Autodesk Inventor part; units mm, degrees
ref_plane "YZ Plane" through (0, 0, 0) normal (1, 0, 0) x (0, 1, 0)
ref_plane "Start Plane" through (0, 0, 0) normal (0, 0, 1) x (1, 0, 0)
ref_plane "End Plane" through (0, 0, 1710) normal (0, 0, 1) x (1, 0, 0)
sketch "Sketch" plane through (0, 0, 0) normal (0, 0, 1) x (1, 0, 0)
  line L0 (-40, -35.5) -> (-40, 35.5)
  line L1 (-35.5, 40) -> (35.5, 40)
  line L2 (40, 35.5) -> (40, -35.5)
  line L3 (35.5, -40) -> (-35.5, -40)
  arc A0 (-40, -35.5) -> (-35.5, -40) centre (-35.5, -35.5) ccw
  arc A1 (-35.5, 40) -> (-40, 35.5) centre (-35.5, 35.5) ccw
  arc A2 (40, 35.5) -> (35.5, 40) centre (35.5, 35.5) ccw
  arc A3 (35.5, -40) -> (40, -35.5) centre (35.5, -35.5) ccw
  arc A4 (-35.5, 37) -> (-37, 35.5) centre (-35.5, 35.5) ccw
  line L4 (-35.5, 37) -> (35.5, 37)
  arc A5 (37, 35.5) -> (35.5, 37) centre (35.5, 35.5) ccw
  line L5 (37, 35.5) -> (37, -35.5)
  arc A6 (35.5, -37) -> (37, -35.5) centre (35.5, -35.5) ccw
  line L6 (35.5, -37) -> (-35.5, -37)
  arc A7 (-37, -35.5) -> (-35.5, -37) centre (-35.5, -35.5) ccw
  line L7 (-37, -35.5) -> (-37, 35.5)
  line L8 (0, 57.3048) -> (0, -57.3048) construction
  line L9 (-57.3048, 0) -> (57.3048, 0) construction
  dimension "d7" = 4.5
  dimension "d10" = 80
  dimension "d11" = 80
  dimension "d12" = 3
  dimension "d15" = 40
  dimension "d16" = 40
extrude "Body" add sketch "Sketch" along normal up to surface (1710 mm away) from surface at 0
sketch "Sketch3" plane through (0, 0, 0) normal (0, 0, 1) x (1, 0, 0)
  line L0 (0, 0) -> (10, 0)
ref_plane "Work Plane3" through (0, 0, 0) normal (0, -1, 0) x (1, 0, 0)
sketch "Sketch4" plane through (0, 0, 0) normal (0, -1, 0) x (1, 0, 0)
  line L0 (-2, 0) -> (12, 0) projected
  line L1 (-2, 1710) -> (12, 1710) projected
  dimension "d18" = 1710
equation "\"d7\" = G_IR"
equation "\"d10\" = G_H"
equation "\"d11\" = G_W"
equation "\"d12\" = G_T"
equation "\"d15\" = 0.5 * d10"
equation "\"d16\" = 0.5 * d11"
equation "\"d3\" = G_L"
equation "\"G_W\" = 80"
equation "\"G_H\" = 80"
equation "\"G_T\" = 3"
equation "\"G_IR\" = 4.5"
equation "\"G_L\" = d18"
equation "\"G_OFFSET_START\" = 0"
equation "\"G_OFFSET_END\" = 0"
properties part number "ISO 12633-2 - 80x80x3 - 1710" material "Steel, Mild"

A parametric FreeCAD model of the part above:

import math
import FreeCAD as App
import Part
import Sketcher
from FreeCAD import Vector

doc = App.newDocument("Part")
body = doc.addObject("PartDesign::Body", "Body")

# Sketch on XY plane
sketch1 = body.newObject("Sketcher::SketchObject", "Sketch")
sketch1.AttachmentSupport = (doc.getObject("XY_Plane"), [""])
sketch1.MapMode = "FlatFace"
sketch1.addGeometry(Part.LineSegment(Vector(-40, 35.5, 0), Vector(-40, -35.5, 0)), False)
sketch1.addGeometry(Part.ArcOfCircle(Part.Circle(Vector(-35.5, -35.5, 0), Vector(0, 0, 1), 4.5), math.radians(180), math.radians(270)), False)
sketch1.addGeometry(Part.LineSegment(Vector(-35.5, -40, 0), Vector(35.5, -40, 0)), False)
sketch1.addGeometry(Part.ArcOfCircle(Part.Circle(Vector(35.5, -35.5, 0), Vector(0, 0, 1), 4.5), math.radians(-90), math.radians(0)), False)
sketch1.addGeometry(Part.LineSegment(Vector(40, -35.5, 0), Vector(40, 35.5, 0)), False)
sketch1.addGeometry(Part.ArcOfCircle(Part.Circle(Vector(35.5, 35.5, 0), Vector(0, 0, 1), 4.5), math.radians(0), math.radians(90)), False)
sketch1.addGeometry(Part.LineSegment(Vector(35.5, 40, 0), Vector(-35.5, 40, 0)), False)
sketch1.addGeometry(Part.ArcOfCircle(Part.Circle(Vector(-35.5, 35.5, 0), Vector(0, 0, 1), 4.5), math.radians(90), math.radians(180)), False)
sketch1.addGeometry(Part.ArcOfCircle(Part.Circle(Vector(-35.5, 35.5, 0), Vector(0, 0, 1), 1.5), math.radians(90), math.radians(180)), False)
sketch1.addGeometry(Part.LineSegment(Vector(-35.5, 37, 0), Vector(35.5, 37, 0)), False)
sketch1.addGeometry(Part.ArcOfCircle(Part.Circle(Vector(35.5, 35.5, 0), Vector(0, 0, 1), 1.5), math.radians(0), math.radians(90)), False)
sketch1.addGeometry(Part.LineSegment(Vector(37, 35.5, 0), Vector(37, -35.5, 0)), False)
sketch1.addGeometry(Part.ArcOfCircle(Part.Circle(Vector(35.5, -35.5, 0), Vector(0, 0, 1), 1.5), math.radians(-90), math.radians(0)), False)
sketch1.addGeometry(Part.LineSegment(Vector(35.5, -37, 0), Vector(-35.5, -37, 0)), False)
sketch1.addGeometry(Part.ArcOfCircle(Part.Circle(Vector(-35.5, -35.5, 0), Vector(0, 0, 1), 1.5), math.radians(180), math.radians(270)), False)
sketch1.addGeometry(Part.LineSegment(Vector(-37, -35.5, 0), Vector(-37, 35.5, 0)), False)
sketch1.addConstraint(Sketcher.Constraint("Tangent", 0, 2, 1, 1))
sketch1.addConstraint(Sketcher.Constraint("Tangent", 1, 2, 2, 1))
sketch1.addConstraint(Sketcher.Constraint("Tangent", 2, 2, 3, 1))
sketch1.addConstraint(Sketcher.Constraint("Tangent", 3, 2, 4, 1))
sketch1.addConstraint(Sketcher.Constraint("Tangent", 4, 2, 5, 1))
sketch1.addConstraint(Sketcher.Constraint("Tangent", 5, 2, 6, 1))
sketch1.addConstraint(Sketcher.Constraint("Tangent", 6, 2, 7, 1))
sketch1.addConstraint(Sketcher.Constraint("Tangent", 7, 2, 0, 1))
sketch1.addConstraint(Sketcher.Constraint("Tangent", 8, 1, 9, 1))
sketch1.addConstraint(Sketcher.Constraint("Tangent", 9, 2, 10, 2))
sketch1.addConstraint(Sketcher.Constraint("Tangent", 10, 1, 11, 1))
sketch1.addConstraint(Sketcher.Constraint("Tangent", 11, 2, 12, 2))
sketch1.addConstraint(Sketcher.Constraint("Tangent", 12, 1, 13, 1))
sketch1.addConstraint(Sketcher.Constraint("Tangent", 13, 2, 14, 2))
sketch1.addConstraint(Sketcher.Constraint("Tangent", 14, 1, 15, 1))
sketch1.addConstraint(Sketcher.Constraint("Tangent", 15, 2, 8, 2))
sketch1.addConstraint(Sketcher.Constraint("Vertical", 0))
sketch1.addConstraint(Sketcher.Constraint("Horizontal", 2))
sketch1.addConstraint(Sketcher.Constraint("Vertical", 4))
sketch1.addConstraint(Sketcher.Constraint("Horizontal", 6))
sketch1.addConstraint(Sketcher.Constraint("Horizontal", 9))
sketch1.addConstraint(Sketcher.Constraint("Vertical", 11))
sketch1.addConstraint(Sketcher.Constraint("Horizontal", 13))
sketch1.addConstraint(Sketcher.Constraint("Vertical", 15))
sketch1.addConstraint(Sketcher.Constraint("Coincident", 8, 3, 7, 3))
sketch1.addConstraint(Sketcher.Constraint("Coincident", 10, 3, 5, 3))
sketch1.addConstraint(Sketcher.Constraint("Coincident", 12, 3, 3, 3))
sketch1.addConstraint(Sketcher.Constraint("Equal", 1, 3))
sketch1.addConstraint(Sketcher.Constraint("Equal", 3, 5))
sketch1.addConstraint(Sketcher.Constraint("Equal", 5, 7))
sketch1.addConstraint(Sketcher.Constraint("Equal", 12, 14))
sketch1.addConstraint(Sketcher.Constraint("Symmetric", 1, 3, 5, 3, -1, 1))
sketch1.addConstraint(Sketcher.Constraint("Equal", 13, 0))
sketch1.addConstraint(Sketcher.Constraint("Radius", 1, 4.5))
sketch1.addConstraint(Sketcher.Constraint("Radius", 8, 1.5))
sketch1.addConstraint(Sketcher.Constraint("DistanceX", 0, 2, -1, 1, 40.0))
pad1 = body.newObject("PartDesign::Pad", "Pad")
pad1.Profile = sketch1
pad1.Length = 1710

doc.recompute()
